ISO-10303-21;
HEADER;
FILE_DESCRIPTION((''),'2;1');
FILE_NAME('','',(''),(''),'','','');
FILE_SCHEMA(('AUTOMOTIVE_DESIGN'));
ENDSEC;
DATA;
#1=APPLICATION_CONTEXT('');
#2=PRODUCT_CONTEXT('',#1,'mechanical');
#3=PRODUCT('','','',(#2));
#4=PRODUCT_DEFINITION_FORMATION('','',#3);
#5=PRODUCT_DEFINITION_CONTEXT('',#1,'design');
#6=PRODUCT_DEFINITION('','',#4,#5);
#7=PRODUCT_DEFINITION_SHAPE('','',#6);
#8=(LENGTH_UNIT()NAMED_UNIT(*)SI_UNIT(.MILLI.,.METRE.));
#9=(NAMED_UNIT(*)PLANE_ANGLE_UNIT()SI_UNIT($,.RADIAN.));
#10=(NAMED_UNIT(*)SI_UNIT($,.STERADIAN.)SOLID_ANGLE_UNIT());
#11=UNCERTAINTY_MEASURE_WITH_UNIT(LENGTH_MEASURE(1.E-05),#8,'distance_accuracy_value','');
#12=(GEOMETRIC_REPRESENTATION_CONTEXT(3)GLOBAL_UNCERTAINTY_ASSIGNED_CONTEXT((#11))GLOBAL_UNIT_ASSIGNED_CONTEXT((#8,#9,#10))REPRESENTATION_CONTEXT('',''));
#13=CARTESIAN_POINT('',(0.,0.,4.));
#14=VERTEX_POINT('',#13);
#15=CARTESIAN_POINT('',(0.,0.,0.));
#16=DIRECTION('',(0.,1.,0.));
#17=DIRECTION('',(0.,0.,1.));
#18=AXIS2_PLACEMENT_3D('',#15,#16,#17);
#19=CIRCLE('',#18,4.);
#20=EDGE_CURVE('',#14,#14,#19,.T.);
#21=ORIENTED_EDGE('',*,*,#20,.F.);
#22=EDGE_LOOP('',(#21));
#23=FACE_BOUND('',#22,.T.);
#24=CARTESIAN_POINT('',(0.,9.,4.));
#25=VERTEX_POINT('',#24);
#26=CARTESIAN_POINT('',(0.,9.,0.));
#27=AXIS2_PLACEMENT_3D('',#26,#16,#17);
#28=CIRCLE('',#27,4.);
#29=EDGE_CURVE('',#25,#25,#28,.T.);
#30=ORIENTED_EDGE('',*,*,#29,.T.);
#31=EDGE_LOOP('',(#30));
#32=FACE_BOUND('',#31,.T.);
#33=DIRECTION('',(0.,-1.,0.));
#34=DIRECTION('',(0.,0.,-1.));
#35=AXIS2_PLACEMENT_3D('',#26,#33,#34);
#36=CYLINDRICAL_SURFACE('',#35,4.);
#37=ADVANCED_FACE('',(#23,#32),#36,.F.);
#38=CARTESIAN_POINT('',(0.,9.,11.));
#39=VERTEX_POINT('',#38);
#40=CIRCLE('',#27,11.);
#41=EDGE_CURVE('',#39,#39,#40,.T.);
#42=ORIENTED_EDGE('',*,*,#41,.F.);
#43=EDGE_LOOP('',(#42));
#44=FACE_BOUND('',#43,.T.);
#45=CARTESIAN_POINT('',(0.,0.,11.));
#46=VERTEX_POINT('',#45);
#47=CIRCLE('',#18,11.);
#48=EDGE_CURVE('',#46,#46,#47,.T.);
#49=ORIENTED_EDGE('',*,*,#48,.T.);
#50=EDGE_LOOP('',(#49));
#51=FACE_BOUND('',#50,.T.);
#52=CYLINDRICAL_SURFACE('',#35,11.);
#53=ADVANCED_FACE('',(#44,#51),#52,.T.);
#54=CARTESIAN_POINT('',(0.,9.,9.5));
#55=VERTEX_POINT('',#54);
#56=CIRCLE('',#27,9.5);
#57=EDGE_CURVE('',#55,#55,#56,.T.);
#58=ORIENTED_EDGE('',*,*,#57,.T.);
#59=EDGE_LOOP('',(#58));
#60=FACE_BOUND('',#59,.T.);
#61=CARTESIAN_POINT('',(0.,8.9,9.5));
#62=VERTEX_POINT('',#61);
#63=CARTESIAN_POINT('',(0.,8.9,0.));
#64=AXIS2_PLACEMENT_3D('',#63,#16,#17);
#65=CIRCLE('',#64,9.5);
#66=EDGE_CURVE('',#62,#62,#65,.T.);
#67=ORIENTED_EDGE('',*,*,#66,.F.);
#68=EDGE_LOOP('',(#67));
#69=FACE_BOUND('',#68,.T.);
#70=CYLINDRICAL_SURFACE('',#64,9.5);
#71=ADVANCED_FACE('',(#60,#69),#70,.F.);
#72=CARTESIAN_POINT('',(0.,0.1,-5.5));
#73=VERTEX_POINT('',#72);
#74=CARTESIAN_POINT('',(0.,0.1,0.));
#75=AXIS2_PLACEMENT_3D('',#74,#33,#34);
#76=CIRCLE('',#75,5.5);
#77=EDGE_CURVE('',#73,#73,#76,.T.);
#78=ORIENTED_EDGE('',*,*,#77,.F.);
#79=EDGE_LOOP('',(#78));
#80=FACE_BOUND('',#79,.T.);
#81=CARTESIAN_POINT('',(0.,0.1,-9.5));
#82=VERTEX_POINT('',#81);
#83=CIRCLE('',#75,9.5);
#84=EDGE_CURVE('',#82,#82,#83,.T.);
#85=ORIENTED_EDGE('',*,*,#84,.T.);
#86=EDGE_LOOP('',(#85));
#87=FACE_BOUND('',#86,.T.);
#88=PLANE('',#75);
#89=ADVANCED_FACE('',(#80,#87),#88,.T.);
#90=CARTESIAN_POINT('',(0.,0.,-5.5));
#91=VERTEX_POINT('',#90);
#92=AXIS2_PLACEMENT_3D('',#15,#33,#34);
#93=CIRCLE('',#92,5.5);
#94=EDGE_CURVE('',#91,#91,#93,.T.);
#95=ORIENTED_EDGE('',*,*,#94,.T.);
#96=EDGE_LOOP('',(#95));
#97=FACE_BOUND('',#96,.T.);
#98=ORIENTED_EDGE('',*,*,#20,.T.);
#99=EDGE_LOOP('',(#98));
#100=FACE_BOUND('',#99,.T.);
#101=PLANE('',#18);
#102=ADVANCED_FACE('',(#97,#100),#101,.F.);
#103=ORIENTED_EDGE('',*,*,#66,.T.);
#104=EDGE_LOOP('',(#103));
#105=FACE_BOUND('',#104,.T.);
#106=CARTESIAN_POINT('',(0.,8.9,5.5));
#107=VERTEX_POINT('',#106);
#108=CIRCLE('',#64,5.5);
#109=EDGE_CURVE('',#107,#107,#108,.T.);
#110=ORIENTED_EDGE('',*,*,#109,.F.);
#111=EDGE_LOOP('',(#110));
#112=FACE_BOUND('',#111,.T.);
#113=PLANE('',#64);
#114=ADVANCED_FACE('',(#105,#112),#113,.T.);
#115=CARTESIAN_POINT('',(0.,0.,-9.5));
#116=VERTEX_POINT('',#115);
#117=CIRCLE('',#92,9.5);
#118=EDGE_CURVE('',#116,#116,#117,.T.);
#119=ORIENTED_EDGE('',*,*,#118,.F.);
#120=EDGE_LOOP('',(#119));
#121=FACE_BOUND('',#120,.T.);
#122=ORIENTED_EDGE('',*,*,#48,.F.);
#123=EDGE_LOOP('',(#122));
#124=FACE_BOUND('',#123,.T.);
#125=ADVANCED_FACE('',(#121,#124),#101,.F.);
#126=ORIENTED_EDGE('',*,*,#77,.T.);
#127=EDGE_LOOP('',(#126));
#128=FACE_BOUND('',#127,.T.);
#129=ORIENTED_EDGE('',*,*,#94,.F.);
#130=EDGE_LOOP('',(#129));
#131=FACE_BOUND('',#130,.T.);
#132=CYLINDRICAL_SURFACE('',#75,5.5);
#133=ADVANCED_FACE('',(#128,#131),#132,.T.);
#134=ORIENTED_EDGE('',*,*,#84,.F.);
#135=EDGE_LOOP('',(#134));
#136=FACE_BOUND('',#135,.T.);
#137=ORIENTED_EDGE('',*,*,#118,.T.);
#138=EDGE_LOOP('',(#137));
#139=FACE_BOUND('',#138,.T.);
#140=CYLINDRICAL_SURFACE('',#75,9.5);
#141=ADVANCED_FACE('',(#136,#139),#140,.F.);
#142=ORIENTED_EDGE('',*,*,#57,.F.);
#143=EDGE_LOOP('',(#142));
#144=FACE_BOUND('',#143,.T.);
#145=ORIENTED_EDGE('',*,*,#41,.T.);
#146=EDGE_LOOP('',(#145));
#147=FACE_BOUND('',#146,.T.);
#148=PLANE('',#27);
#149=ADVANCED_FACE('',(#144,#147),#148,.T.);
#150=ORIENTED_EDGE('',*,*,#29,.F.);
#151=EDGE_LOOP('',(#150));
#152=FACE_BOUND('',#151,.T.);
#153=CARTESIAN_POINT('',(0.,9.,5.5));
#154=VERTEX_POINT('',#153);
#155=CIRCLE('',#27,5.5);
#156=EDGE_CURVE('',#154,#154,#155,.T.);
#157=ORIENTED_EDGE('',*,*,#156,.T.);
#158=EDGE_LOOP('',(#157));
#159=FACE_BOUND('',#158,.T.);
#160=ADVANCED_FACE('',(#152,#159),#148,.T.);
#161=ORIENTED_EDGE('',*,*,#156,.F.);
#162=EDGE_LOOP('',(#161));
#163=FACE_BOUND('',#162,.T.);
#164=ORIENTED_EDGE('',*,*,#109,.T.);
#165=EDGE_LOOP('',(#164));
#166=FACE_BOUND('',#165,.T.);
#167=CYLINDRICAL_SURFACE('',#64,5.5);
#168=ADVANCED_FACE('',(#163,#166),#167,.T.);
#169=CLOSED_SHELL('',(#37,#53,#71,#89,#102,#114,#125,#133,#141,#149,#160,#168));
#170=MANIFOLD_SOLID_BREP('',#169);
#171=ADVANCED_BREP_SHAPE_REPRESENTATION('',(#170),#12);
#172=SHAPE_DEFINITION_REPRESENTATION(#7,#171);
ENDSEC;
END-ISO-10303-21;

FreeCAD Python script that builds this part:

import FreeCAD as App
import Part
import Sketcher

V = App.Vector
Q = App.Units.Quantity

doc = App.newDocument("Part")
body = doc.addObject("PartDesign::Body", "Body")

# Sketch on XZ plane
sketch1 = doc.addObject("Sketcher::SketchObject", "Sketch")
body.addObject(sketch1)
sketch1.AttachmentSupport = (doc.XZ_Plane, [""])
sketch1.MapMode = "FlatFace"
sketch1.addGeometry(Part.Circle(V(0, 0, 0), V(0, 0, 1), 11), False)
sketch1.addGeometry(Part.Circle(V(0, 0, 0), V(0, 0, 1), 4), False)
sketch1.addConstraint(Sketcher.Constraint("Coincident", 0, 3, -1, 1))
sketch1.addConstraint(Sketcher.Constraint("Coincident", 1, 3, -1, 1))
sketch1.addConstraint(Sketcher.Constraint("Diameter", 0, Q("22 mm")))
sketch1.addConstraint(Sketcher.Constraint("Diameter", 1, Q("8 mm")))
pad1 = doc.addObject("PartDesign::Pad", "Pad")
body.addObject(pad1)
pad1.Profile = sketch1
pad1.Length = 9
pad1.Reversed = True

# Sketch on XZ plane
sketch2 = doc.addObject("Sketcher::SketchObject", "Sketch001")
body.addObject(sketch2)
sketch2.AttachmentSupport = (doc.XZ_Plane, [""])
sketch2.MapMode = "FlatFace"
sketch2.AttachmentOffset = App.Placement(V(0, 0, -9), App.Rotation())
sketch2.addGeometry(Part.Circle(V(0, 0, 0), V(0, 0, 1), 9.5), False)
sketch2.addGeometry(Part.Circle(V(0, 0, 0), V(0, 0, 1), 5.5), False)
sketch2.addConstraint(Sketcher.Constraint("Coincident", 0, 3, -1, 1))
sketch2.addConstraint(Sketcher.Constraint("Coincident", 1, 3, -1, 1))
sketch2.addConstraint(Sketcher.Constraint("Diameter", 0, Q("19 mm")))
sketch2.addConstraint(Sketcher.Constraint("Diameter", 1, Q("11 mm")))
pocket1 = doc.addObject("PartDesign::Pocket", "Pocket")
body.addObject(pocket1)
pocket1.Profile = sketch2
pocket1.Length = 0.1
pocket1.Reversed = True

# Sketch on XZ plane
sketch3 = doc.addObject("Sketcher::SketchObject", "Sketch002")
body.addObject(sketch3)
sketch3.AttachmentSupport = (doc.XZ_Plane, [""])
sketch3.MapMode = "FlatFace"
sketch3.AttachmentOffset = App.Placement(V(0, 0, -0.1), App.Rotation())
sketch3.addGeometry(Part.Circle(V(0, 0, 0), V(0, 0, 1), 9.5), False)
sketch3.addGeometry(Part.Circle(V(0, 0, 0), V(0, 0, 1), 5.5), False)
sketch3.addConstraint(Sketcher.Constraint("Coincident", 0, 3, -1, 1))
sketch3.addConstraint(Sketcher.Constraint("Coincident", 1, 3, -1, 1))
sketch3.addConstraint(Sketcher.Constraint("Diameter", 0, Q("19 mm")))
sketch3.addConstraint(Sketcher.Constraint("Diameter", 1, Q("11 mm")))
pocket2 = doc.addObject("PartDesign::Pocket", "Pocket001")
body.addObject(pocket2)
pocket2.Profile = sketch3
pocket2.Length = 0.1
pocket2.Reversed = True

doc.recompute()
